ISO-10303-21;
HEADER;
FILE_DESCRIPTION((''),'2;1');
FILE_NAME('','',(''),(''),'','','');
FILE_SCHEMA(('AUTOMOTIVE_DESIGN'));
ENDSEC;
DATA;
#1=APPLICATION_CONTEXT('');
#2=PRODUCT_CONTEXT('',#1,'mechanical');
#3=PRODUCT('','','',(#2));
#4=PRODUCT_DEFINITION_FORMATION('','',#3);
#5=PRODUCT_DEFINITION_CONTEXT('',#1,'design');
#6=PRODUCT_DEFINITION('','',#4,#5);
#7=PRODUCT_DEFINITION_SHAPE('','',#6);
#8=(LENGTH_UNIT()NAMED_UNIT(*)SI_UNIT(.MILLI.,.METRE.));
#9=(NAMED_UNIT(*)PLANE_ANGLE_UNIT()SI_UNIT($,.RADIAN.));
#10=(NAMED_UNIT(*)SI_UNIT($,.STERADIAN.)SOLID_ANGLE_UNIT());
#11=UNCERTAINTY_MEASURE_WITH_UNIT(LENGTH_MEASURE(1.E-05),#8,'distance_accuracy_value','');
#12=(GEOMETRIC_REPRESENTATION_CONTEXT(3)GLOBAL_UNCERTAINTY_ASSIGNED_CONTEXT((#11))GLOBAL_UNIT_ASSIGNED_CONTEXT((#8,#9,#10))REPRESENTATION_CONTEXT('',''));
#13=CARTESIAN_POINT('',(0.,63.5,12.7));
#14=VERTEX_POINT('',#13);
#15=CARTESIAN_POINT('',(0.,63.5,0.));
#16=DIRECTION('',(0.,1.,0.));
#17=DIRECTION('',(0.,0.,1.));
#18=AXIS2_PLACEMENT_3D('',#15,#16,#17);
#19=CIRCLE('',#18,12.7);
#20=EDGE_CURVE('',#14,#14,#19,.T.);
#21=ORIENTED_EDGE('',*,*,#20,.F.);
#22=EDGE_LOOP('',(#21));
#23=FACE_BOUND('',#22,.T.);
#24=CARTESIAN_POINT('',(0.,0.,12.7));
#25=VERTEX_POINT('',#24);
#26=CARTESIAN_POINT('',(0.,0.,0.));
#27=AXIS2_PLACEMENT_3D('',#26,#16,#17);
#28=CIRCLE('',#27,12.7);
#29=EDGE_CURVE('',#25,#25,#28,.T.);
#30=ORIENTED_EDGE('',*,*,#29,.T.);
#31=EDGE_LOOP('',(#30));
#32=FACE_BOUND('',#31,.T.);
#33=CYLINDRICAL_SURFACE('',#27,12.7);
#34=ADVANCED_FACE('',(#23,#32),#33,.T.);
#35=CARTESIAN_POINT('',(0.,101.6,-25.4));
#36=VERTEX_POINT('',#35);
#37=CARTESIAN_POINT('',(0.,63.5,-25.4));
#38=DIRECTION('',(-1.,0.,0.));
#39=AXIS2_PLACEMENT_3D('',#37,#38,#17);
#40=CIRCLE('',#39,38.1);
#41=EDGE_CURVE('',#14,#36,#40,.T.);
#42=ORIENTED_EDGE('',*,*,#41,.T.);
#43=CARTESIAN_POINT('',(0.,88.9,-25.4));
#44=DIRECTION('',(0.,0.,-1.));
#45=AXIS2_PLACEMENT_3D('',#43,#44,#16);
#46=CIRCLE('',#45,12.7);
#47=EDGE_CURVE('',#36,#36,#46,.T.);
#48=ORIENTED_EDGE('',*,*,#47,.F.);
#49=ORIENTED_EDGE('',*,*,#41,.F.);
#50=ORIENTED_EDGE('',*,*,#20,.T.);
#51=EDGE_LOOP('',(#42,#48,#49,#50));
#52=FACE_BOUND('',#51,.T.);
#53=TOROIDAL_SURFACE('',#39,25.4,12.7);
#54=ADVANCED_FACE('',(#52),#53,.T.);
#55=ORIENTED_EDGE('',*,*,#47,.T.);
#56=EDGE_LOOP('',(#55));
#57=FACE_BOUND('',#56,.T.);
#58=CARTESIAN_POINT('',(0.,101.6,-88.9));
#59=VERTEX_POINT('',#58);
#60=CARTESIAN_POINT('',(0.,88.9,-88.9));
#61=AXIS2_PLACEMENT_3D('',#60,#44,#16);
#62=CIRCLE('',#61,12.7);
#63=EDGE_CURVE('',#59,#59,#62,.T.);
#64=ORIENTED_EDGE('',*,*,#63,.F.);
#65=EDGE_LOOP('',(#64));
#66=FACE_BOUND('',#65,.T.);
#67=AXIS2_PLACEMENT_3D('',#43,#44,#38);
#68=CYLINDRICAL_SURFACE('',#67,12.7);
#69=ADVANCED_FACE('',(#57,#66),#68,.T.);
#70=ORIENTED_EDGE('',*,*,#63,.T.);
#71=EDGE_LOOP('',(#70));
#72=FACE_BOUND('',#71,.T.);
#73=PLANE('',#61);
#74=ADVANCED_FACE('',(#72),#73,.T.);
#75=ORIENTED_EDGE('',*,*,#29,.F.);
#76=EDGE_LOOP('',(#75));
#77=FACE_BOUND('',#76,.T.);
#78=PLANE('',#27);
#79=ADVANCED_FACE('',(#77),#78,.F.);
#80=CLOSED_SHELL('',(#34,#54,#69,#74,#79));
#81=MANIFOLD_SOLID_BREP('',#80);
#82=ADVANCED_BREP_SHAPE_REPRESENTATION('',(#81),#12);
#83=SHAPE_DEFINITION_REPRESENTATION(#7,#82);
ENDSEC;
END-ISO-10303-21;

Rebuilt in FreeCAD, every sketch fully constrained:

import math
import FreeCAD as App
import Part
import Sketcher

V = App.Vector
Q = App.Units.Quantity

doc = App.newDocument("Part")
body = doc.addObject("PartDesign::Body", "Body")

# Sketch on XZ plane
sketch1 = body.newObject("Sketcher::SketchObject", "Sketch")
sketch1.AttachmentSupport = (doc.getObject("XZ_Plane"), [""])
sketch1.MapMode = "FlatFace"
sketch1.addGeometry(Part.Circle(V(0, 0, 0), V(0, 0, 1), 12.7), False)
sketch1.addConstraint(Sketcher.Constraint("Coincident", 0, 3, -1, 1))
sketch1.addConstraint(Sketcher.Constraint("Diameter", 0, Q("1 in")))

# Sketch on YZ plane
sketch2 = body.newObject("Sketcher::SketchObject", "Sketch001")
sketch2.AttachmentSupport = (doc.getObject("YZ_Plane"), [""])
sketch2.MapMode = "FlatFace"
sketch2.addGeometry(Part.LineSegment(V(0, 0, 0), V(63.5, 0, 0)), False)
sketch2.addGeometry(Part.ArcOfCircle(Part.Circle(V(63.5, -25.4, 0), V(0, 0, 1), 25.4), math.radians(0), math.radians(90)), False)
sketch2.addGeometry(Part.LineSegment(V(88.9, -25.4, 0), V(88.9, -88.9, 0)), False)
sketch2.addConstraint(Sketcher.Constraint("Tangent", 0, 2, 1, 2))
sketch2.addConstraint(Sketcher.Constraint("Tangent", 1, 1, 2, 1))
sketch2.addConstraint(Sketcher.Constraint("Horizontal", 0))
sketch2.addConstraint(Sketcher.Constraint("Vertical", 2))
sketch2.addConstraint(Sketcher.Constraint("Coincident", 0, 1, -1, 1))
sketch2.addConstraint(Sketcher.Constraint("Equal", 0, 2))
sketch2.addConstraint(Sketcher.Constraint("Radius", 1, Q("1 in")))
sketch2.addConstraint(Sketcher.Constraint("DistanceX", 0, 1, 0, 2, Q("2.5 in")))
doc.recompute()

additivepipe = body.newObject("PartDesign::AdditivePipe", "AdditivePipe")
additivepipe.Profile = sketch1
additivepipe.Spine = (sketch2, ["Edge1", "Edge2", "Edge3"])

doc.recompute()
